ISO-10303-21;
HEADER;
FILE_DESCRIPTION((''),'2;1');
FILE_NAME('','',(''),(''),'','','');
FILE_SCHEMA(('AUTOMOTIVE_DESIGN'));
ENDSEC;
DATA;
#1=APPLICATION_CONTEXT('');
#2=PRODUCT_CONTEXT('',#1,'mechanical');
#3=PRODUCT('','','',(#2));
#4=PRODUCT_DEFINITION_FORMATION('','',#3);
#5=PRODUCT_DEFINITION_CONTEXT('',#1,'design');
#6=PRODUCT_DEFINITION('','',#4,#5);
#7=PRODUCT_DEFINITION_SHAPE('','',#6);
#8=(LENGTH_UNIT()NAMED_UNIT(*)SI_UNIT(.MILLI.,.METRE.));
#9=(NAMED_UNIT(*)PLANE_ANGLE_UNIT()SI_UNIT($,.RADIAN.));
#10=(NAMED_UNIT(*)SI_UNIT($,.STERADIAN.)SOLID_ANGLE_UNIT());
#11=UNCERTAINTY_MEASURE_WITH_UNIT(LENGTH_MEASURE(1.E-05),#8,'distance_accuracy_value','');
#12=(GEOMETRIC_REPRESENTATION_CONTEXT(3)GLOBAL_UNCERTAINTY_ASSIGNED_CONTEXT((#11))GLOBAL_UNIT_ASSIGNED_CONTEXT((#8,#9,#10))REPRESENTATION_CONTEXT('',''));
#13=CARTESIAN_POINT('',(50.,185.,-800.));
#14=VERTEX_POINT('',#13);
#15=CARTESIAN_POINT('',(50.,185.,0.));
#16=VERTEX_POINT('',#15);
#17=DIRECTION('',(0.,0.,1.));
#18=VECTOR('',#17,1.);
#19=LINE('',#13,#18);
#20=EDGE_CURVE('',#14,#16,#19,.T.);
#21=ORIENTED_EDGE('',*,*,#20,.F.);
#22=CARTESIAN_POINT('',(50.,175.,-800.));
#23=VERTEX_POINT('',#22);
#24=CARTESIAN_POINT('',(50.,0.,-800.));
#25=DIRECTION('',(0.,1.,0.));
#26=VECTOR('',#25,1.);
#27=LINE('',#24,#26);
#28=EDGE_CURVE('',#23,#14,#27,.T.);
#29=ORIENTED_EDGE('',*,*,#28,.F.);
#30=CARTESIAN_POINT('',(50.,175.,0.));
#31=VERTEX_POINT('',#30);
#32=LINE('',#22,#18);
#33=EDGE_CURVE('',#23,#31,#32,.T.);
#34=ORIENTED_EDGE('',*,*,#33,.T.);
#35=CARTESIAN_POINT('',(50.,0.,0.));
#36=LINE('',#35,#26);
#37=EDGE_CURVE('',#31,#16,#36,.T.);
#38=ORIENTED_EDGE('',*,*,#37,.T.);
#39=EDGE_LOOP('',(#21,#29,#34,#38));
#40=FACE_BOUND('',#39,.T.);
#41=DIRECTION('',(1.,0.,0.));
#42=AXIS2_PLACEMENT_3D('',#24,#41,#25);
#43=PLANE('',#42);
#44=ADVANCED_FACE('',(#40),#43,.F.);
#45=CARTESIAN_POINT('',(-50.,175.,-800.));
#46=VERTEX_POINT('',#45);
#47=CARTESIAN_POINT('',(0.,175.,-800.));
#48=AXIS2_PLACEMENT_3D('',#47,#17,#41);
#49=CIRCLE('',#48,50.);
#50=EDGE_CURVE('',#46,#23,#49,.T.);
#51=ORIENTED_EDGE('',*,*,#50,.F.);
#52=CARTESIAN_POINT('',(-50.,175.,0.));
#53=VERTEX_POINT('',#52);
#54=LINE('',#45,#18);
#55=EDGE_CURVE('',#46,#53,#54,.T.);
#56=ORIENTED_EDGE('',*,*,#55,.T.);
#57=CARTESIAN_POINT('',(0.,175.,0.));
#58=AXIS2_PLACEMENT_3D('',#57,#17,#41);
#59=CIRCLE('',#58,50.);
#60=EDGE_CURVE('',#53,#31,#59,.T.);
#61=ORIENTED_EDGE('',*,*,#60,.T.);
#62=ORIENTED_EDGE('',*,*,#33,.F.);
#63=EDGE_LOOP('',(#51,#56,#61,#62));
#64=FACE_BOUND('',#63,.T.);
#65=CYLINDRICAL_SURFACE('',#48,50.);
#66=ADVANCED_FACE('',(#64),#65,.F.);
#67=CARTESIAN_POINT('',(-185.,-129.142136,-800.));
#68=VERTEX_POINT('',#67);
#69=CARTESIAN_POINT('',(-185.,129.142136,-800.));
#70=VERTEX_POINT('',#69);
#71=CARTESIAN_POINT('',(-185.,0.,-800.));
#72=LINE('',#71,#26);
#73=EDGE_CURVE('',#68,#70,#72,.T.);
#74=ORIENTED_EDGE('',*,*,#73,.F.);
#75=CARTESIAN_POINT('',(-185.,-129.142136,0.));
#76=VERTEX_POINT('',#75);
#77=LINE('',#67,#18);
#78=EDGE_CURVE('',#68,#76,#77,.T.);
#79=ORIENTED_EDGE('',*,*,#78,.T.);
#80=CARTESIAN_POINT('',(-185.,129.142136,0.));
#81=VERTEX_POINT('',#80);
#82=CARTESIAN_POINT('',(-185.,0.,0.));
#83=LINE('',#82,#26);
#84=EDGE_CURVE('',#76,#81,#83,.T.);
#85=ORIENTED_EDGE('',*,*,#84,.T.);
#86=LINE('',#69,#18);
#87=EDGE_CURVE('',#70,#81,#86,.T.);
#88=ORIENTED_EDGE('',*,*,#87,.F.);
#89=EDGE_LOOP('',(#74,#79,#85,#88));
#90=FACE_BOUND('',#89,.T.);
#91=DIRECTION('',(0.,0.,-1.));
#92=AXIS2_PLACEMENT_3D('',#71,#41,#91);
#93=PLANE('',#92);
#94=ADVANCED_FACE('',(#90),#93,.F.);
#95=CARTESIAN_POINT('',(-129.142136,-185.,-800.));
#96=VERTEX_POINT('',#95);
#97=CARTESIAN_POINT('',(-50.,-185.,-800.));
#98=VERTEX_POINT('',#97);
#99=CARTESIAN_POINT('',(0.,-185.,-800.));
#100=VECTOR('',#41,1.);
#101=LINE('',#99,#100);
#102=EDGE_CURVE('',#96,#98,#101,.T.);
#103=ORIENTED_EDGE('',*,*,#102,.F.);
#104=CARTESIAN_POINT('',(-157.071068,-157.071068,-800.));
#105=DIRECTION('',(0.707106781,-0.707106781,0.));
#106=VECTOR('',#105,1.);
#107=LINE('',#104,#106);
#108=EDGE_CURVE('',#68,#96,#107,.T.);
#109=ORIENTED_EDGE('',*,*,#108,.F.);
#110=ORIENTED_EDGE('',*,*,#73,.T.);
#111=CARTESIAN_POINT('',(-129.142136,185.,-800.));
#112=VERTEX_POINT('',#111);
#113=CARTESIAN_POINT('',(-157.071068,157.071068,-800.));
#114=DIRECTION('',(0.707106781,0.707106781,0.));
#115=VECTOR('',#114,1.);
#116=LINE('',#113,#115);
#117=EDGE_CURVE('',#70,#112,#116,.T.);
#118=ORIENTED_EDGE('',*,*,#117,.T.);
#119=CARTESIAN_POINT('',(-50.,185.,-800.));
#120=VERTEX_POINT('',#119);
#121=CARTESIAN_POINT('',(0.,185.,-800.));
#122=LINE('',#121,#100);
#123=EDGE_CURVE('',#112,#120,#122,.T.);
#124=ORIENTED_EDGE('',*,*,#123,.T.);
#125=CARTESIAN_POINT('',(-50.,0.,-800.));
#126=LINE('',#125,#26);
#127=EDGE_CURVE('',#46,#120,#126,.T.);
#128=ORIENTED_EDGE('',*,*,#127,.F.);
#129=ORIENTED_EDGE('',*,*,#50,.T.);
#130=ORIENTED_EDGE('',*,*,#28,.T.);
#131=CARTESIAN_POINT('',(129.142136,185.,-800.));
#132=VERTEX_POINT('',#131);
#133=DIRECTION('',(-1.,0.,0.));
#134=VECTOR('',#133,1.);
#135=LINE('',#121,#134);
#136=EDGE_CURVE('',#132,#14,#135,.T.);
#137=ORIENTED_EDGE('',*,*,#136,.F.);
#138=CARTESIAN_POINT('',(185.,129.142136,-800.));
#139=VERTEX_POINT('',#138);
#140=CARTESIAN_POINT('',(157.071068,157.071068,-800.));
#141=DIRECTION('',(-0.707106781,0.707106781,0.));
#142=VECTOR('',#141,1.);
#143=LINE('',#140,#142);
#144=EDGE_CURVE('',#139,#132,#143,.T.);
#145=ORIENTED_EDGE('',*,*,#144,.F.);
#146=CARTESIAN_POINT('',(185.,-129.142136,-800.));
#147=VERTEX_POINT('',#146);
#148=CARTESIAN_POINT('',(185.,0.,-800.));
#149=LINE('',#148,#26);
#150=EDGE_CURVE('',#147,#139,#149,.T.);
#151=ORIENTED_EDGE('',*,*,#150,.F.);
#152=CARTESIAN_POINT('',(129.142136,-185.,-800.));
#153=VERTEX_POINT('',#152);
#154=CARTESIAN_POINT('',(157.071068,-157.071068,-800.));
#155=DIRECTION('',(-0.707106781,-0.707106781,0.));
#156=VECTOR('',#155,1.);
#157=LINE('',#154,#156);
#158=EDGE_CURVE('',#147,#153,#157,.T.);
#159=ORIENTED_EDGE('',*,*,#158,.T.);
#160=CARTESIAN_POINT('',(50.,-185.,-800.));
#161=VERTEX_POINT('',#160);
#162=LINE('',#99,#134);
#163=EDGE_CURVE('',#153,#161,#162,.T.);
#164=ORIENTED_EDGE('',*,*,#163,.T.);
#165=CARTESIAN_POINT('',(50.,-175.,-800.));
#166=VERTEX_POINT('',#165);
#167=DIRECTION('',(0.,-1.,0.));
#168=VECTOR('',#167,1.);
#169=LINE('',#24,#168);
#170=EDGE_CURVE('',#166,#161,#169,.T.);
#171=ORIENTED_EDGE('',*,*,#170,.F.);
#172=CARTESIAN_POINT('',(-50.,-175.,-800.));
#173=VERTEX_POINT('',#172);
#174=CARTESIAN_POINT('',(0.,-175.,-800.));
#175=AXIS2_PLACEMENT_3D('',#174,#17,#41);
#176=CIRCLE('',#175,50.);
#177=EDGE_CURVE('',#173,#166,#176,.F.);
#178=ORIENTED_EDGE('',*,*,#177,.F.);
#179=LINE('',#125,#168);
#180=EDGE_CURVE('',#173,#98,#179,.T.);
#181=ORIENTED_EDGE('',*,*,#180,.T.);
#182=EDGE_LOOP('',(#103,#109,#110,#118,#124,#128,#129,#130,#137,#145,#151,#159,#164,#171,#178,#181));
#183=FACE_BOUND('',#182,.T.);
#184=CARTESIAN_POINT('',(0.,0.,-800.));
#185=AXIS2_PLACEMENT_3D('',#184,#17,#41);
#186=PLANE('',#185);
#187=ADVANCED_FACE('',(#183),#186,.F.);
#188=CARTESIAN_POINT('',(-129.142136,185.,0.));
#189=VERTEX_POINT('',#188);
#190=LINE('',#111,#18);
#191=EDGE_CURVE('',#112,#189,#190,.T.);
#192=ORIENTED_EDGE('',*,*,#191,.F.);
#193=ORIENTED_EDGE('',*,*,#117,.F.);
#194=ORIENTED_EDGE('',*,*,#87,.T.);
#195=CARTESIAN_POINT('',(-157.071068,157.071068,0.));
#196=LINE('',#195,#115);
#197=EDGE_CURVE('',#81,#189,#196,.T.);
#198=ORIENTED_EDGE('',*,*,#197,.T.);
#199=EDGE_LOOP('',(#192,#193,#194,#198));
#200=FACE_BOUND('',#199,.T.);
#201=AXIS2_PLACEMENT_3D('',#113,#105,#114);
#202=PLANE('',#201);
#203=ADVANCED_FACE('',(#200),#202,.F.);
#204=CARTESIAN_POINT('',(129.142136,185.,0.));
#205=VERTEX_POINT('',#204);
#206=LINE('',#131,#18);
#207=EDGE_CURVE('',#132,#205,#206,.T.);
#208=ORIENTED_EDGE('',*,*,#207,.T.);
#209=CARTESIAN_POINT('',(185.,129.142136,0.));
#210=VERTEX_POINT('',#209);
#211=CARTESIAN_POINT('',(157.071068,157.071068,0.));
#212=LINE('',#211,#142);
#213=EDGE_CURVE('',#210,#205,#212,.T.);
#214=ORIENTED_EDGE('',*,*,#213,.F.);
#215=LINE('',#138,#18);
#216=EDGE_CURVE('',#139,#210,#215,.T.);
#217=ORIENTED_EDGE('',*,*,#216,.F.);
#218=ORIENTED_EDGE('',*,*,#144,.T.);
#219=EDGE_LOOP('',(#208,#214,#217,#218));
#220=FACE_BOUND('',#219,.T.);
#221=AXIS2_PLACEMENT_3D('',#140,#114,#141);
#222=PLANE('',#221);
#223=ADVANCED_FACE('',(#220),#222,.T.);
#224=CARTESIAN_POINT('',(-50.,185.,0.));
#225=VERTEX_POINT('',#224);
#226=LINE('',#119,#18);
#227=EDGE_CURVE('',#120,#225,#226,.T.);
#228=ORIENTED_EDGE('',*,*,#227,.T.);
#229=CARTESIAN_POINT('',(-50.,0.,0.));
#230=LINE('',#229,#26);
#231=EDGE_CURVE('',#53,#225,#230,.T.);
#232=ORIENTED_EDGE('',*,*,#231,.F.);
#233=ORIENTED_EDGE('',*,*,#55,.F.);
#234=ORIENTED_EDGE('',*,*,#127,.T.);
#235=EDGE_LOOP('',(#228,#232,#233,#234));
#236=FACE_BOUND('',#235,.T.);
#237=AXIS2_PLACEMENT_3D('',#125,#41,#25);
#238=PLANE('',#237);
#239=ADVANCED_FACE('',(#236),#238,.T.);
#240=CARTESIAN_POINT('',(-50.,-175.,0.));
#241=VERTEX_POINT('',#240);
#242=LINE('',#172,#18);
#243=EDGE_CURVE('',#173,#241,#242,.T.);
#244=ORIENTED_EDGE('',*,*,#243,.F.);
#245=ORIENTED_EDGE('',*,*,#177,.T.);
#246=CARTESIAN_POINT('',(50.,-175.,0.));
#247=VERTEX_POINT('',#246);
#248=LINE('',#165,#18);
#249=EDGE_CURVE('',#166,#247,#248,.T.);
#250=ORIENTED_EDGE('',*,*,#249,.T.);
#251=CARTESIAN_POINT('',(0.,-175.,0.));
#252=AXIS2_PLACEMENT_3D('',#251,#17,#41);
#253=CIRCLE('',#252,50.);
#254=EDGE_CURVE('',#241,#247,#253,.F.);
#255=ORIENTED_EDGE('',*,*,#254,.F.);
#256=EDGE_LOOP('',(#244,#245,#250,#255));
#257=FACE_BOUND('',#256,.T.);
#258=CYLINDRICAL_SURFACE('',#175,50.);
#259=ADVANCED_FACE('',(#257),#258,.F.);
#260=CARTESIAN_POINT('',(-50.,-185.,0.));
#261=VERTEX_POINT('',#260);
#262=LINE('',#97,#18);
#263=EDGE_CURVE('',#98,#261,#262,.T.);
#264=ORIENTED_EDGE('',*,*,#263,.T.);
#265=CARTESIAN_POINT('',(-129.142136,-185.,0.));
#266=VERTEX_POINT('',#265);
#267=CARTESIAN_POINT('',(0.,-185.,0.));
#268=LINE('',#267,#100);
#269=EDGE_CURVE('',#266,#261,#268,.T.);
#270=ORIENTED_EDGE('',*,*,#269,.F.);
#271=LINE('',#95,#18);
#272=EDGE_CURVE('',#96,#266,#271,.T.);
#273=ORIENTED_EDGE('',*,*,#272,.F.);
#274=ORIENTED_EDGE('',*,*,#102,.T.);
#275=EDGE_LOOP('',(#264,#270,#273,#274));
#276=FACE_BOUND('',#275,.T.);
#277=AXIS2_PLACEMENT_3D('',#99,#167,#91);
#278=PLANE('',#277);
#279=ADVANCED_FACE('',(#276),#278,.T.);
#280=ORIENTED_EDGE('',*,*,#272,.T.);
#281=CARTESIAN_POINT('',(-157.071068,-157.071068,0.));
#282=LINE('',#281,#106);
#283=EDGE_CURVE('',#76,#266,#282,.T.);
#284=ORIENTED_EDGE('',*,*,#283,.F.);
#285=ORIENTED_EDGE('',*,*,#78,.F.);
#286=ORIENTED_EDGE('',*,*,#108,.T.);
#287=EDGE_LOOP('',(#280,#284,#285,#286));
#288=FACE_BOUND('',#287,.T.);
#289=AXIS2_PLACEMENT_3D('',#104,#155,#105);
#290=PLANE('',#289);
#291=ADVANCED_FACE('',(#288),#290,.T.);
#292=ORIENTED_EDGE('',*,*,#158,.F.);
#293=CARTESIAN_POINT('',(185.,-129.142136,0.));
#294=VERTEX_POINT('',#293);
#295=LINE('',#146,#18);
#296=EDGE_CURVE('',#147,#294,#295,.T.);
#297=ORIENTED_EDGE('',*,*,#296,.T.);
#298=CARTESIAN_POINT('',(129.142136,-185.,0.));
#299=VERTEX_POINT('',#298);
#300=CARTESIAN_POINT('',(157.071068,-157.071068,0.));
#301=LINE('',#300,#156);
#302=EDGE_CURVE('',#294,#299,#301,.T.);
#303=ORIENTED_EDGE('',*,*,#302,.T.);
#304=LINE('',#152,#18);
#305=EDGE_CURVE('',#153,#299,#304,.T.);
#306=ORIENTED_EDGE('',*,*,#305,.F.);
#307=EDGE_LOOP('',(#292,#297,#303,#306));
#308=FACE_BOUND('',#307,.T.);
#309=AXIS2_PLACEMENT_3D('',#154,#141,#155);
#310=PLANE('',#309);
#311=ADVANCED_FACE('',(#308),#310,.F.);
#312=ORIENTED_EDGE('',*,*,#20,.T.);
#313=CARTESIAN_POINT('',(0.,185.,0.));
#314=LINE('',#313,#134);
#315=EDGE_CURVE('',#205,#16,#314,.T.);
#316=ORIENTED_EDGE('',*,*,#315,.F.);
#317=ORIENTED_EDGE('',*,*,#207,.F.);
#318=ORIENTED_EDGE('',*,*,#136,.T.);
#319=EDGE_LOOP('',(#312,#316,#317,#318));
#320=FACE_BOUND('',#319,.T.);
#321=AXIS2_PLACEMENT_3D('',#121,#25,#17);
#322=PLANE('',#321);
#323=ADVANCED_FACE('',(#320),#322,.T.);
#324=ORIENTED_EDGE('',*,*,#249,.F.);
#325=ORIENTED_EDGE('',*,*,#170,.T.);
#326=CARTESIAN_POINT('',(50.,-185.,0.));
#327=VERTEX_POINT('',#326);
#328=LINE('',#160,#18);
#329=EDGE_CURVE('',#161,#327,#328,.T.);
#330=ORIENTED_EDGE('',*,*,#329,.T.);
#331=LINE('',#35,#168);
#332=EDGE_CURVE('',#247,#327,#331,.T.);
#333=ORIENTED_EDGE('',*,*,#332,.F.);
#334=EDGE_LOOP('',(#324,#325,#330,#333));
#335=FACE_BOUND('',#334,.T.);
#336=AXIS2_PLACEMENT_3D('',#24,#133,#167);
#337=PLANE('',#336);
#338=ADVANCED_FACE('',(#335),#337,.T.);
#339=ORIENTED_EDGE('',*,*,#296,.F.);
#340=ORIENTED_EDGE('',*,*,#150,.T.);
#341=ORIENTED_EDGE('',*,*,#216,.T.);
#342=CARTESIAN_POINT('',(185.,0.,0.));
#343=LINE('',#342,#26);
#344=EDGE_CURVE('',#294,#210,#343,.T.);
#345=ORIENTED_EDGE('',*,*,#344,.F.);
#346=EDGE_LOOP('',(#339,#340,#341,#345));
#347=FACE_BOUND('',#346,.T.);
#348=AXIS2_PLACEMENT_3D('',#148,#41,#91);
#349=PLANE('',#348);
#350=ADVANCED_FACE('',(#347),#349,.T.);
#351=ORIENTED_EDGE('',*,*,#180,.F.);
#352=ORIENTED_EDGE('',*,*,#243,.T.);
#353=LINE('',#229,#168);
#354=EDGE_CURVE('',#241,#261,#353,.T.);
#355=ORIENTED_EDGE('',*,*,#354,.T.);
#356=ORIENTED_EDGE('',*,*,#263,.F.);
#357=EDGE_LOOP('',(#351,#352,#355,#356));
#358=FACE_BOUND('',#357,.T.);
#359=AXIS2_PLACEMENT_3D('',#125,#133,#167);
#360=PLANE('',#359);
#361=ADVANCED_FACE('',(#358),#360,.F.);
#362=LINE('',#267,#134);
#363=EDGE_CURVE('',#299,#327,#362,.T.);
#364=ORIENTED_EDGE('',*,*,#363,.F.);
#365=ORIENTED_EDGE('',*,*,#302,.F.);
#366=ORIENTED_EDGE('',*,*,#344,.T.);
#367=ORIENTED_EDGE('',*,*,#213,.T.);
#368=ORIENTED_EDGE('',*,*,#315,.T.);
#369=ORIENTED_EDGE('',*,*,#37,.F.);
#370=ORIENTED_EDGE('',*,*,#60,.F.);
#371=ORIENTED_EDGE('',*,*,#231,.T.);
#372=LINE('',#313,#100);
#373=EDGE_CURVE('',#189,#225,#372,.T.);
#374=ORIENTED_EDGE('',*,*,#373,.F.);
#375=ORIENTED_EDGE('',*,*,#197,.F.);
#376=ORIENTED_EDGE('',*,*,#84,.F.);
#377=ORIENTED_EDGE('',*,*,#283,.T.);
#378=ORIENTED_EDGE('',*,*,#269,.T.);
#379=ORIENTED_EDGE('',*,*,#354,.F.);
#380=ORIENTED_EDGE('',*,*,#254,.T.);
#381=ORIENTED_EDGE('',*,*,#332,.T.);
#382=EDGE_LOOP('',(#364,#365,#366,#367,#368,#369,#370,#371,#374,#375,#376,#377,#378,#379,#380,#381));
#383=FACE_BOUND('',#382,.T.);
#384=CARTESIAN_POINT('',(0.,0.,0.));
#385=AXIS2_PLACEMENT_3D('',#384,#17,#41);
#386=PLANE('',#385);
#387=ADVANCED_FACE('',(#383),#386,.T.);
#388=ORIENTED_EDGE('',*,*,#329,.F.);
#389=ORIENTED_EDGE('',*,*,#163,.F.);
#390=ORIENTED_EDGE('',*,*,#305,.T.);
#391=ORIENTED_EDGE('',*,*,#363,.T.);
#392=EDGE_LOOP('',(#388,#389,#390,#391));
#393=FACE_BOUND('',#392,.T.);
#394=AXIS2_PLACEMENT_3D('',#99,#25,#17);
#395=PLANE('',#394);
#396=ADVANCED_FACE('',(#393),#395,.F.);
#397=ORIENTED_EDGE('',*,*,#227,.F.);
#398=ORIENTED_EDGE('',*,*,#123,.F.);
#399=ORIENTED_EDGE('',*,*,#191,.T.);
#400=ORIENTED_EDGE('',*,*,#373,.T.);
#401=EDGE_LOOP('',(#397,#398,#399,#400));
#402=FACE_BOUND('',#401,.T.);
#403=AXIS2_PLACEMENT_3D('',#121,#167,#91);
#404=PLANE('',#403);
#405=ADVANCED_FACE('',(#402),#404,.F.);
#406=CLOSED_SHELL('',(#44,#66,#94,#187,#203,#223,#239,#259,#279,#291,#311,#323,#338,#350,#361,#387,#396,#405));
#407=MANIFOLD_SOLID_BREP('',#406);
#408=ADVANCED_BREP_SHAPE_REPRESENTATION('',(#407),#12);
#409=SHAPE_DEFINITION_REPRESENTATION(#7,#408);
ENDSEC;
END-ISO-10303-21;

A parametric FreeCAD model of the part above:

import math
import FreeCAD as App
import Part
import Sketcher

V = App.Vector
Q = App.Units.Quantity

doc = App.newDocument("Part")
body = doc.addObject("PartDesign::Body", "Body")

# Sketch on XY plane
sketch1 = body.newObject("Sketcher::SketchObject", "Sketch")
sketch1.AttachmentSupport = (doc.getObject("XY_Plane"), [""])
sketch1.MapMode = "FlatFace"
sketch1.addGeometry([
    Part.LineSegment(V(-185, 129.142136, 0), V(-185, -129.142136, 0)),  # 0
    Part.LineSegment(V(-185, -129.142136, 0), V(-129.142136, -185, 0)),  # 1
    Part.LineSegment(V(-129.142136, -185, 0), V(-50, -185, 0)),  # 2
    Part.LineSegment(V(-50, -185, 0), V(-50, -175, 0)),  # 3
    Part.ArcOfCircle(Part.Circle(V(0, -175, 0), V(0, 0, 1), 50), math.radians(0), math.radians(180)),  # 4
    Part.LineSegment(V(50, -175, 0), V(50, -185, 0)),  # 5
    Part.LineSegment(V(50, -185, 0), V(129.142136, -185, 0)),  # 6
    Part.LineSegment(V(129.142136, -185, 0), V(185, -129.142136, 0)),  # 7
    Part.LineSegment(V(185, -129.142136, 0), V(185, 129.142136, 0)),  # 8
    Part.LineSegment(V(185, 129.142136, 0), V(129.142136, 185, 0)),  # 9
    Part.LineSegment(V(129.142136, 185, 0), V(50, 185, 0)),  # 10
    Part.LineSegment(V(50, 185, 0), V(50, 175, 0)),  # 11
    Part.ArcOfCircle(Part.Circle(V(0, 175, 0), V(0, 0, 1), 50), math.radians(180), math.radians(360)),  # 12
    Part.LineSegment(V(-50, 175, 0), V(-50, 185, 0)),  # 13
    Part.LineSegment(V(-50, 185, 0), V(-129.142136, 185, 0)),  # 14
    Part.LineSegment(V(-129.142136, 185, 0), V(-185, 129.142136, 0)),  # 15
], False)
sketch1.addConstraint([
    Sketcher.Constraint("Coincident", 0, 2, 1, 1),
    Sketcher.Constraint("Coincident", 1, 2, 2, 1),
    Sketcher.Constraint("Coincident", 2, 2, 3, 1),
    Sketcher.Constraint("Tangent", 3, 2, 4, 2),
    Sketcher.Constraint("Tangent", 4, 1, 5, 1),
    Sketcher.Constraint("Coincident", 5, 2, 6, 1),
    Sketcher.Constraint("Coincident", 6, 2, 7, 1),
    Sketcher.Constraint("Coincident", 7, 2, 8, 1),
    Sketcher.Constraint("Coincident", 8, 2, 9, 1),
    Sketcher.Constraint("Coincident", 9, 2, 10, 1),
    Sketcher.Constraint("Coincident", 10, 2, 11, 1),
    Sketcher.Constraint("Tangent", 11, 2, 12, 2),
    Sketcher.Constraint("Tangent", 12, 1, 13, 1),
    Sketcher.Constraint("Coincident", 13, 2, 14, 1),
    Sketcher.Constraint("Coincident", 14, 2, 15, 1),
    Sketcher.Constraint("Coincident", 15, 2, 0, 1),
    Sketcher.Constraint("Vertical", 0),
    Sketcher.Constraint("Horizontal", 2),
    Sketcher.Constraint("Vertical", 3),
    Sketcher.Constraint("Vertical", 5),
    Sketcher.Constraint("Horizontal", 6),
    Sketcher.Constraint("Vertical", 8),
    Sketcher.Constraint("Horizontal", 10),
    Sketcher.Constraint("Vertical", 11),
    Sketcher.Constraint("Vertical", 13),
    Sketcher.Constraint("Horizontal", 14),
    Sketcher.Constraint("Equal", 4, 12),
    Sketcher.Constraint("Symmetric", 4, 3, 12, 3, -1, 1),
    Sketcher.Constraint("Symmetric", 0, 2, 8, 2, -1, 1),
    Sketcher.Constraint("Symmetric", 1, 2, 9, 2, -1, 1),
    Sketcher.Constraint("Symmetric", 6, 2, 14, 2, -1, 1),
    Sketcher.Constraint("Symmetric", 2, 2, 5, 2, -2),
    Sketcher.Constraint("Perpendicular", 1, 7),
    Sketcher.Constraint("Perpendicular", 9, 15),
    Sketcher.Constraint("Horizontal", 0, 2, 7, 2),
    Sketcher.Constraint("Vertical", 6, 2, 9, 2),
    Sketcher.Constraint("Radius", 4, Q("50 mm")),
    Sketcher.Constraint("DistanceY", 3, 1, 3, 2, Q("10 mm")),
    Sketcher.Constraint("DistanceY", 4, 3, -1, 1, Q("175 mm")),
    Sketcher.Constraint("DistanceX", 0, 2, -1, 1, Q("185 mm")),
    Sketcher.Constraint("DistanceY", 0, 2, 0, 1, Q("258.284271 mm")),
])
pad1 = body.newObject("PartDesign::Pad", "Pad")
pad1.Profile = sketch1
pad1.Length = 800
pad1.Reversed = True

doc.recompute()
